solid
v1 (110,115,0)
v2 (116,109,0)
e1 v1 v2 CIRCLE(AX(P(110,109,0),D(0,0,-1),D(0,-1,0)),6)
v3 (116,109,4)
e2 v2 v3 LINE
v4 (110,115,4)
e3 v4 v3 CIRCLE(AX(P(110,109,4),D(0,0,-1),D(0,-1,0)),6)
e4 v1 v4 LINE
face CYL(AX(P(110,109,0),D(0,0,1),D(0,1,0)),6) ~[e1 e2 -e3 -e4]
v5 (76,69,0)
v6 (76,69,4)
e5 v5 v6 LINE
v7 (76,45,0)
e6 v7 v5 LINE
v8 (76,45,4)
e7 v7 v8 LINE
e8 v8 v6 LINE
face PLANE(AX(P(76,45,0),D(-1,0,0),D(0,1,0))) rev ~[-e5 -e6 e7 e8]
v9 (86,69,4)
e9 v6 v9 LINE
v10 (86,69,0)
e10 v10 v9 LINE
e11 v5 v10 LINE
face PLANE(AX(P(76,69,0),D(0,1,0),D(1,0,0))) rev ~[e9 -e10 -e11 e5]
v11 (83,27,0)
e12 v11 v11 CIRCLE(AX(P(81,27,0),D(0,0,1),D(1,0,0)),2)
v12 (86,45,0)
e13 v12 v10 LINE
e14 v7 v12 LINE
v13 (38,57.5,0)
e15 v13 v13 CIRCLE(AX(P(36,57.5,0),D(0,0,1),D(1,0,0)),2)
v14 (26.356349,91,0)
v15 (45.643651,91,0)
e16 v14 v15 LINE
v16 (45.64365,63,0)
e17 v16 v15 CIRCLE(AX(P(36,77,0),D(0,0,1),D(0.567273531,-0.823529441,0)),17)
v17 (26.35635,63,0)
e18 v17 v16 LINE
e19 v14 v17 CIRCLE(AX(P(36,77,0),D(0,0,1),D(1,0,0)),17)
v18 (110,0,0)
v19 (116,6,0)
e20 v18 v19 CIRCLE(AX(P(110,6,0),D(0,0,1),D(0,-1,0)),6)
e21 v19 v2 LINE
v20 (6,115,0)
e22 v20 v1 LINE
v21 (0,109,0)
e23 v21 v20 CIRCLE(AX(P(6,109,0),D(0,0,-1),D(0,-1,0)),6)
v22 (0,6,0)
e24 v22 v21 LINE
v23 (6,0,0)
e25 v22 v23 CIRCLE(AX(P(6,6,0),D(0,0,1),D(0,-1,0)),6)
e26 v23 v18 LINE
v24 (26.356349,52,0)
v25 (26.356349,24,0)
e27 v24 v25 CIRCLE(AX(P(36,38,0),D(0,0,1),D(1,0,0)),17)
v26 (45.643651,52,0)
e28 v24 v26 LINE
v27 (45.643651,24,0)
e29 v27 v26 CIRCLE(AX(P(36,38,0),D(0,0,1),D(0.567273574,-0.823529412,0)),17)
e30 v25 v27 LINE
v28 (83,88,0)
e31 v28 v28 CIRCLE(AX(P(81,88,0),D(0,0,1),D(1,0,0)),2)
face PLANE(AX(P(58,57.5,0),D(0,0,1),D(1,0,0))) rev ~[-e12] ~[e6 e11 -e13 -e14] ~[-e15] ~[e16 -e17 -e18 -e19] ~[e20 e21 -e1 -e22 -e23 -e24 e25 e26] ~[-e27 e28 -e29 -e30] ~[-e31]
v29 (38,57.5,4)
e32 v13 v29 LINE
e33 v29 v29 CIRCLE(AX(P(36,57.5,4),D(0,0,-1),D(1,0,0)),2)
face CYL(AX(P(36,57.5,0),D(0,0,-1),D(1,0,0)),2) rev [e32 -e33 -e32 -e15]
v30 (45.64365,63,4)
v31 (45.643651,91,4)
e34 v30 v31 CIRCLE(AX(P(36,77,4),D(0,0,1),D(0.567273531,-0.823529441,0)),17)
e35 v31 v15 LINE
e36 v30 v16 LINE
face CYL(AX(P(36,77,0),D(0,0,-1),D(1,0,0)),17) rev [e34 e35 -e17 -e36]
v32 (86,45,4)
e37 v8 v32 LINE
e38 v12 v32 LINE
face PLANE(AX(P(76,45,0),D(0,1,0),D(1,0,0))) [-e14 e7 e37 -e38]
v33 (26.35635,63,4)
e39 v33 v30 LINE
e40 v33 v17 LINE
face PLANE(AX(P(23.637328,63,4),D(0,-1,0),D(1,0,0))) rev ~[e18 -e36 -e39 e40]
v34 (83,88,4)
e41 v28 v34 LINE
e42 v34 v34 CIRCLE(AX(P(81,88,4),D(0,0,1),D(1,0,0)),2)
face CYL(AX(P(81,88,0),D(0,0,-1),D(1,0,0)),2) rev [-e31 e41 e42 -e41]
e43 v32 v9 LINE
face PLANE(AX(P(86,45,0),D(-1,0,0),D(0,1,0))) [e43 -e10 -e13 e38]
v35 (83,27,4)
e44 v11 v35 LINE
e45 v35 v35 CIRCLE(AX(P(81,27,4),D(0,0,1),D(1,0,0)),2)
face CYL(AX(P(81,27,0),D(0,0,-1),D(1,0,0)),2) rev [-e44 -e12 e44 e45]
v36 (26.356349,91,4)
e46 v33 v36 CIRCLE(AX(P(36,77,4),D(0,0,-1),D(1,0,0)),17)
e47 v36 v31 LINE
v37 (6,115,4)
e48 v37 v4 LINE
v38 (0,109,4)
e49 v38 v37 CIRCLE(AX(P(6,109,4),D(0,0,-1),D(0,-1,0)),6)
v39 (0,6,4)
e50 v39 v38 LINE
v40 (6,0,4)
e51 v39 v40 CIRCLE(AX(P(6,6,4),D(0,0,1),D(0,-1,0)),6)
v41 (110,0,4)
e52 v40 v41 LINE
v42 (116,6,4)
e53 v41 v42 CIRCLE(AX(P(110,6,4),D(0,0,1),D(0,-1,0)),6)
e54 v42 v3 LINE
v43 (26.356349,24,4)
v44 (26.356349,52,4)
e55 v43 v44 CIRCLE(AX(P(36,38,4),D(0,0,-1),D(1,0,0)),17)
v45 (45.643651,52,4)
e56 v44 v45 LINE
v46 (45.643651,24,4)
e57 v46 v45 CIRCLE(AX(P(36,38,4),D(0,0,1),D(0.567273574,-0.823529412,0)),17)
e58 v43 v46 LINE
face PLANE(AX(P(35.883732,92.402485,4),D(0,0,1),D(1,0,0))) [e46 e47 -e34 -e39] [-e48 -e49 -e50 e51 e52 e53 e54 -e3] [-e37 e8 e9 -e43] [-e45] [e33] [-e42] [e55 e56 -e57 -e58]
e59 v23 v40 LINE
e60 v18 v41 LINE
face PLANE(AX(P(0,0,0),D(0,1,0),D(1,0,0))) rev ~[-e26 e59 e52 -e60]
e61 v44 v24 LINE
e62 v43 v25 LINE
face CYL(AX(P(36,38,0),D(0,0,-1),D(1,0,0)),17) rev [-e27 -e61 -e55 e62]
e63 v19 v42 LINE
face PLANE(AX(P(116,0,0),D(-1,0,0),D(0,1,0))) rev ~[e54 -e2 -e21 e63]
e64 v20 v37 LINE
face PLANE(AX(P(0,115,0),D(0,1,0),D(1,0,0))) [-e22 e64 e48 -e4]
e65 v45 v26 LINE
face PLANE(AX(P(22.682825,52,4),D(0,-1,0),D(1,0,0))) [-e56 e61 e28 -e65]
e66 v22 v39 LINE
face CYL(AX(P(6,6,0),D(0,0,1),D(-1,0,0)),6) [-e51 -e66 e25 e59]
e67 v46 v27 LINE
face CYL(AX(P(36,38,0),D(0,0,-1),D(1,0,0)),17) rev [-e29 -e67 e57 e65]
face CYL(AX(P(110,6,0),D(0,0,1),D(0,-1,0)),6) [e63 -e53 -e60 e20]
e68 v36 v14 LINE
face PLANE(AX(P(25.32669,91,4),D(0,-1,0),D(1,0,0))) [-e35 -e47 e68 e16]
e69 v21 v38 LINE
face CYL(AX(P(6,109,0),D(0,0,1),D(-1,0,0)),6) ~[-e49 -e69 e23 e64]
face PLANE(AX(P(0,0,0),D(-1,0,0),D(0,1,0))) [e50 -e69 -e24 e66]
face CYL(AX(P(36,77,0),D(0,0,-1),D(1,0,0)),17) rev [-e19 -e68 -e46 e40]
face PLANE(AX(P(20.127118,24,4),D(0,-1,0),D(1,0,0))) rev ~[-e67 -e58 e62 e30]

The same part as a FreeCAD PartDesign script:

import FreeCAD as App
import Part
import Sketcher
from FreeCAD import Vector
Q = App.Units.Quantity


def edges_at(feature, points):
    """Names of the edges that pass closest to the given points."""
    edges = feature.Shape.Edges
    near = lambda p: min(range(len(edges)), key=lambda i: edges[i].distToShape(Part.Vertex(*p))[0])
    return sorted({f"Edge{near(p) + 1}" for p in points})

doc = App.newDocument("Part")
params = doc.addObject("Spreadsheet::Sheet", "Params")
for row, (alias, value) in enumerate([
    ("sketch1_diameter", "4 mm"),
    ("sketch1_width", "116 mm"),
    ("sketch1_width2", "10 mm"),
    ("sketch1_height", "115 mm"),
    ("sketch1_height2", "24 mm"),
    ("pad1_length", "4 mm"),
    ("fillet_radius", "6 mm"),
    ("sketch2_diameter", "4 mm"),
    ("sketch2_diameter2", "34 mm"),
    ("pocket1_length", "25 mm"),
    ("sketch3_height", "3 mm"),
    ("pad2_length", "4 mm"),
], start=1):
    params.set(f"A{row}", alias)
    params.set(f"B{row}", "=" + value)
    params.setAlias(f"B{row}", alias)

body = doc.addObject("PartDesign::Body", "Body")

# Sketch on XY plane
sketch1 = body.newObject("Sketcher::SketchObject", "Sketch")
sketch1.AttachmentSupport = (doc.getObject("XY_Plane"), [""])
sketch1.MapMode = "FlatFace"
sketch1.addGeometry([
    Part.LineSegment(Vector(0, 115, 0), Vector(0, 0, 0)),  # 0
    Part.LineSegment(Vector(0, 0, 0), Vector(116, 0, 0)),  # 1
    Part.LineSegment(Vector(116, 0, 0), Vector(116, 115, 0)),  # 2
    Part.LineSegment(Vector(116, 115, 0), Vector(0, 115, 0)),  # 3
    Part.Circle(Vector(81, 27, 0), Vector(0, 0, 1), 2),  # 4
    Part.LineSegment(Vector(86, 45, 0), Vector(76, 45, 0)),  # 5
    Part.LineSegment(Vector(76, 45, 0), Vector(76, 69, 0)),  # 6
    Part.LineSegment(Vector(76, 69, 0), Vector(86, 69, 0)),  # 7
    Part.LineSegment(Vector(86, 69, 0), Vector(86, 45, 0)),  # 8
    Part.Circle(Vector(81, 88, 0), Vector(0, 0, 1), 2),  # 9
], False)
sketch1.addConstraint([
    Sketcher.Constraint("Coincident", 0, 2, 1, 1),
    Sketcher.Constraint("Coincident", 1, 2, 2, 1),
    Sketcher.Constraint("Coincident", 2, 2, 3, 1),
    Sketcher.Constraint("Coincident", 3, 2, 0, 1),
    Sketcher.Constraint("Coincident", 5, 2, 6, 1),
    Sketcher.Constraint("Coincident", 6, 2, 7, 1),
    Sketcher.Constraint("Coincident", 7, 2, 8, 1),
    Sketcher.Constraint("Coincident", 8, 2, 5, 1),
    Sketcher.Constraint("Vertical", 0),
    Sketcher.Constraint("Horizontal", 1),
    Sketcher.Constraint("Vertical", 2),
    Sketcher.Constraint("Horizontal", 3),
    Sketcher.Constraint("Horizontal", 5),
    Sketcher.Constraint("Vertical", 6),
    Sketcher.Constraint("Horizontal", 7),
    Sketcher.Constraint("Vertical", 8),
    Sketcher.Constraint("Coincident", 0, 2, -1, 1),
    Sketcher.Constraint("Equal", 4, 9),
    Sketcher.Constraint("Vertical", 4, 3, 9, 3),
    Sketcher.Constraint("Diameter", 4, Q("4 mm")),
    Sketcher.Constraint("DistanceX", 1, 1, 1, 2, Q("116 mm")),
    Sketcher.Constraint("DistanceX", 5, 2, 5, 1, Q("10 mm")),
    Sketcher.Constraint("DistanceY", 0, 2, 0, 1, Q("115 mm")),
    Sketcher.Constraint("DistanceY", 6, 1, 6, 2, Q("24 mm")),
    Sketcher.Constraint("DistanceX", -1, 1, 4, 3, Q("81 mm")),
    Sketcher.Constraint("DistanceY", -1, 1, 4, 3, Q("27 mm")),
    Sketcher.Constraint("DistanceY", -1, 1, 9, 3, Q("88 mm")),
    Sketcher.Constraint("DistanceX", -1, 1, 5, 2, Q("76 mm")),
    Sketcher.Constraint("DistanceY", -1, 1, 5, 2, Q("45 mm")),
])
sketch1.setExpression("Constraints[19]", "Params.sketch1_diameter")
sketch1.setExpression("Constraints[20]", "Params.sketch1_width")
sketch1.setExpression("Constraints[21]", "Params.sketch1_width2")
sketch1.setExpression("Constraints[22]", "Params.sketch1_height")
sketch1.setExpression("Constraints[23]", "Params.sketch1_height2")
pad1 = body.newObject("PartDesign::Pad", "Pad")
pad1.Profile = sketch1
pad1.setExpression("Length", "Params.pad1_length")
doc.recompute()

fillet = body.newObject("PartDesign::Fillet", "Fillet")
fillet.Base = (pad1, edges_at(pad1, [
    (0, 115, 2),
    (116, 115, 2),
    (116, 0, 2),
    (0, 0, 2),
]))
fillet.setExpression("Radius", "Params.fillet_radius")

# Sketch on XY plane
sketch2 = body.newObject("Sketcher::SketchObject", "Sketch001")
sketch2.AttachmentSupport = (doc.getObject("XY_Plane"), [""])
sketch2.MapMode = "FlatFace"
sketch2.addGeometry([
    Part.Circle(Vector(36, 57.5, 0), Vector(0, 0, 1), 2),
    Part.Circle(Vector(36, 77, 0), Vector(0, 0, 1), 17),
    Part.Circle(Vector(36, 38, 0), Vector(0, 0, 1), 17),
], False)
sketch2.addConstraint([
    Sketcher.Constraint("Equal", 1, 2),
    Sketcher.Constraint("Vertical", 0, 3, 1, 3),
    Sketcher.Constraint("Vertical", 1, 3, 2, 3),
    Sketcher.Constraint("Diameter", 0, Q("4 mm")),
    Sketcher.Constraint("Diameter", 1, Q("34 mm")),
    Sketcher.Constraint("DistanceX", -1, 1, 0, 3, Q("36 mm")),
    Sketcher.Constraint("DistanceY", -1, 1, 1, 3, Q("77 mm")),
    Sketcher.Constraint("DistanceY", -1, 1, 2, 3, Q("38 mm")),
    Sketcher.Constraint("DistanceY", -1, 1, 0, 3, Q("57.5 mm")),
])
sketch2.setExpression("Constraints[3]", "Params.sketch2_diameter")
sketch2.setExpression("Constraints[4]", "Params.sketch2_diameter2")
pocket1 = body.newObject("PartDesign::Pocket", "Pocket")
pocket1.Profile = sketch2
pocket1.setExpression("Length", "Params.pocket1_length")
pocket1.Reversed = True

# Sketch on XY plane
sketch3 = body.newObject("Sketcher::SketchObject", "Sketch002")
sketch3.AttachmentSupport = (doc.getObject("XY_Plane"), [""])
sketch3.MapMode = "FlatFace"
sketch3.AttachmentOffset = App.Placement(Vector(0, 0, 4), App.Rotation())
sketch3.addGeometry([
    Part.LineSegment(Vector(32.74464, 94.836249, 0), Vector(25.32669, 91, 0)),  # 0
    Part.LineSegment(Vector(25.32669, 91, 0), Vector(46.063566, 91, 0)),  # 1
    Part.LineSegment(Vector(46.063566, 91, 0), Vector(43.255925, 94.420469, 0)),  # 2
    Part.LineSegment(Vector(43.255925, 94.420469, 0), Vector(32.74464, 94.836249, 0)),  # 3
    Part.LineSegment(Vector(23.637328, 63, 0), Vector(23.637328, 59.794852, 0)),  # 4
    Part.LineSegment(Vector(23.637328, 59.794852, 0), Vector(51.187966, 59.794852, 0)),  # 5
    Part.LineSegment(Vector(51.187966, 59.794852, 0), Vector(51.187966, 63, 0)),  # 6
    Part.LineSegment(Vector(51.187966, 63, 0), Vector(23.637328, 63, 0)),  # 7
    Part.LineSegment(Vector(22.682825, 55.037914, 0), Vector(22.682825, 52, 0)),  # 8
    Part.LineSegment(Vector(22.682825, 52, 0), Vector(51.711809, 52, 0)),  # 9
    Part.LineSegment(Vector(51.711809, 52, 0), Vector(51.711809, 55.037914, 0)),  # 10
    Part.LineSegment(Vector(51.711809, 55.037914, 0), Vector(22.682825, 55.037914, 0)),  # 11
    Part.LineSegment(Vector(20.127118, 24, 0), Vector(20.127118, 21, 0)),  # 12
    Part.LineSegment(Vector(20.127118, 21, 0), Vector(53.351317, 21, 0)),  # 13
    Part.LineSegment(Vector(53.351317, 21, 0), Vector(53.351317, 24, 0)),  # 14
    Part.LineSegment(Vector(53.351317, 24, 0), Vector(20.127118, 24, 0)),  # 15
], False)
sketch3.addConstraint([
    Sketcher.Constraint("Coincident", 0, 2, 1, 1),
    Sketcher.Constraint("Coincident", 1, 2, 2, 1),
    Sketcher.Constraint("Coincident", 2, 2, 3, 1),
    Sketcher.Constraint("Coincident", 3, 2, 0, 1),
    Sketcher.Constraint("Coincident", 4, 2, 5, 1),
    Sketcher.Constraint("Coincident", 5, 2, 6, 1),
    Sketcher.Constraint("Coincident", 6, 2, 7, 1),
    Sketcher.Constraint("Coincident", 7, 2, 4, 1),
    Sketcher.Constraint("Coincident", 8, 2, 9, 1),
    Sketcher.Constraint("Coincident", 9, 2, 10, 1),
    Sketcher.Constraint("Coincident", 10, 2, 11, 1),
    Sketcher.Constraint("Coincident", 11, 2, 8, 1),
    Sketcher.Constraint("Coincident", 12, 2, 13, 1),
    Sketcher.Constraint("Coincident", 13, 2, 14, 1),
    Sketcher.Constraint("Coincident", 14, 2, 15, 1),
    Sketcher.Constraint("Coincident", 15, 2, 12, 1),
    Sketcher.Constraint("Horizontal", 1),
    Sketcher.Constraint("Vertical", 4),
    Sketcher.Constraint("Horizontal", 5),
    Sketcher.Constraint("Vertical", 6),
    Sketcher.Constraint("Horizontal", 7),
    Sketcher.Constraint("Vertical", 8),
    Sketcher.Constraint("Horizontal", 9),
    Sketcher.Constraint("Vertical", 10),
    Sketcher.Constraint("Horizontal", 11),
    Sketcher.Constraint("Vertical", 12),
    Sketcher.Constraint("Horizontal", 13),
    Sketcher.Constraint("Vertical", 14),
    Sketcher.Constraint("Horizontal", 15),
    Sketcher.Constraint("DistanceY", 12, 2, 12, 1, Q("3 mm")),
    Sketcher.Constraint("DistanceY", -1, 1, 0, 2, Q("91 mm")),
    Sketcher.Constraint("DistanceY", -1, 1, 6, 2, Q("63 mm")),
    Sketcher.Constraint("DistanceY", -1, 1, 8, 2, Q("52 mm")),
    Sketcher.Constraint("DistanceY", -1, 1, 12, 2, Q("21 mm")),
    Sketcher.Constraint("DistanceX", 13, 1, 13, 2, Q("33.224199 mm")),
    Sketcher.Constraint("DistanceX", 5, 1, 5, 2, Q("27.550638 mm")),
    Sketcher.Constraint("DistanceX", 1, 2, 5, 2, Q("5.1244 mm")),
    Sketcher.Constraint("DistanceX", 1, 1, 1, 2, Q("20.736876 mm")),
    Sketcher.Constraint("DistanceX", 9, 1, 9, 2, Q("29.028984 mm")),
    Sketcher.Constraint("DistanceY", 4, 2, 4, 1, Q("3.205147 mm")),
    Sketcher.Constraint("DistanceY", 8, 2, 8, 1, Q("3.037915 mm")),
    Sketcher.Constraint("DistanceX", -1, 1, 0, 2, Q("25.32669 mm")),
    Sketcher.Constraint("DistanceY", -1, 1, 2, 2, Q("94.420469 mm")),
    Sketcher.Constraint("DistanceX", -1, 1, 3, 2, Q("32.74464 mm")),
    Sketcher.Constraint("DistanceY", -1, 1, 3, 2, Q("94.836249 mm")),
    Sketcher.Constraint("DistanceX", -1, 1, 9, 2, Q("51.711809 mm")),
    Sketcher.Constraint("DistanceX", 2, 2, 1, 2, Q("2.807641 mm")),
    Sketcher.Constraint("DistanceX", 12, 2, 4, 2, Q("3.51021 mm")),
])
sketch3.setExpression("Constraints[29]", "Params.sketch3_height")
pad2 = body.newObject("PartDesign::Pad", "Pad001")
pad2.Profile = sketch3
pad2.setExpression("Length", "Params.pad2_length")
pad2.Reversed = True

doc.recompute()
